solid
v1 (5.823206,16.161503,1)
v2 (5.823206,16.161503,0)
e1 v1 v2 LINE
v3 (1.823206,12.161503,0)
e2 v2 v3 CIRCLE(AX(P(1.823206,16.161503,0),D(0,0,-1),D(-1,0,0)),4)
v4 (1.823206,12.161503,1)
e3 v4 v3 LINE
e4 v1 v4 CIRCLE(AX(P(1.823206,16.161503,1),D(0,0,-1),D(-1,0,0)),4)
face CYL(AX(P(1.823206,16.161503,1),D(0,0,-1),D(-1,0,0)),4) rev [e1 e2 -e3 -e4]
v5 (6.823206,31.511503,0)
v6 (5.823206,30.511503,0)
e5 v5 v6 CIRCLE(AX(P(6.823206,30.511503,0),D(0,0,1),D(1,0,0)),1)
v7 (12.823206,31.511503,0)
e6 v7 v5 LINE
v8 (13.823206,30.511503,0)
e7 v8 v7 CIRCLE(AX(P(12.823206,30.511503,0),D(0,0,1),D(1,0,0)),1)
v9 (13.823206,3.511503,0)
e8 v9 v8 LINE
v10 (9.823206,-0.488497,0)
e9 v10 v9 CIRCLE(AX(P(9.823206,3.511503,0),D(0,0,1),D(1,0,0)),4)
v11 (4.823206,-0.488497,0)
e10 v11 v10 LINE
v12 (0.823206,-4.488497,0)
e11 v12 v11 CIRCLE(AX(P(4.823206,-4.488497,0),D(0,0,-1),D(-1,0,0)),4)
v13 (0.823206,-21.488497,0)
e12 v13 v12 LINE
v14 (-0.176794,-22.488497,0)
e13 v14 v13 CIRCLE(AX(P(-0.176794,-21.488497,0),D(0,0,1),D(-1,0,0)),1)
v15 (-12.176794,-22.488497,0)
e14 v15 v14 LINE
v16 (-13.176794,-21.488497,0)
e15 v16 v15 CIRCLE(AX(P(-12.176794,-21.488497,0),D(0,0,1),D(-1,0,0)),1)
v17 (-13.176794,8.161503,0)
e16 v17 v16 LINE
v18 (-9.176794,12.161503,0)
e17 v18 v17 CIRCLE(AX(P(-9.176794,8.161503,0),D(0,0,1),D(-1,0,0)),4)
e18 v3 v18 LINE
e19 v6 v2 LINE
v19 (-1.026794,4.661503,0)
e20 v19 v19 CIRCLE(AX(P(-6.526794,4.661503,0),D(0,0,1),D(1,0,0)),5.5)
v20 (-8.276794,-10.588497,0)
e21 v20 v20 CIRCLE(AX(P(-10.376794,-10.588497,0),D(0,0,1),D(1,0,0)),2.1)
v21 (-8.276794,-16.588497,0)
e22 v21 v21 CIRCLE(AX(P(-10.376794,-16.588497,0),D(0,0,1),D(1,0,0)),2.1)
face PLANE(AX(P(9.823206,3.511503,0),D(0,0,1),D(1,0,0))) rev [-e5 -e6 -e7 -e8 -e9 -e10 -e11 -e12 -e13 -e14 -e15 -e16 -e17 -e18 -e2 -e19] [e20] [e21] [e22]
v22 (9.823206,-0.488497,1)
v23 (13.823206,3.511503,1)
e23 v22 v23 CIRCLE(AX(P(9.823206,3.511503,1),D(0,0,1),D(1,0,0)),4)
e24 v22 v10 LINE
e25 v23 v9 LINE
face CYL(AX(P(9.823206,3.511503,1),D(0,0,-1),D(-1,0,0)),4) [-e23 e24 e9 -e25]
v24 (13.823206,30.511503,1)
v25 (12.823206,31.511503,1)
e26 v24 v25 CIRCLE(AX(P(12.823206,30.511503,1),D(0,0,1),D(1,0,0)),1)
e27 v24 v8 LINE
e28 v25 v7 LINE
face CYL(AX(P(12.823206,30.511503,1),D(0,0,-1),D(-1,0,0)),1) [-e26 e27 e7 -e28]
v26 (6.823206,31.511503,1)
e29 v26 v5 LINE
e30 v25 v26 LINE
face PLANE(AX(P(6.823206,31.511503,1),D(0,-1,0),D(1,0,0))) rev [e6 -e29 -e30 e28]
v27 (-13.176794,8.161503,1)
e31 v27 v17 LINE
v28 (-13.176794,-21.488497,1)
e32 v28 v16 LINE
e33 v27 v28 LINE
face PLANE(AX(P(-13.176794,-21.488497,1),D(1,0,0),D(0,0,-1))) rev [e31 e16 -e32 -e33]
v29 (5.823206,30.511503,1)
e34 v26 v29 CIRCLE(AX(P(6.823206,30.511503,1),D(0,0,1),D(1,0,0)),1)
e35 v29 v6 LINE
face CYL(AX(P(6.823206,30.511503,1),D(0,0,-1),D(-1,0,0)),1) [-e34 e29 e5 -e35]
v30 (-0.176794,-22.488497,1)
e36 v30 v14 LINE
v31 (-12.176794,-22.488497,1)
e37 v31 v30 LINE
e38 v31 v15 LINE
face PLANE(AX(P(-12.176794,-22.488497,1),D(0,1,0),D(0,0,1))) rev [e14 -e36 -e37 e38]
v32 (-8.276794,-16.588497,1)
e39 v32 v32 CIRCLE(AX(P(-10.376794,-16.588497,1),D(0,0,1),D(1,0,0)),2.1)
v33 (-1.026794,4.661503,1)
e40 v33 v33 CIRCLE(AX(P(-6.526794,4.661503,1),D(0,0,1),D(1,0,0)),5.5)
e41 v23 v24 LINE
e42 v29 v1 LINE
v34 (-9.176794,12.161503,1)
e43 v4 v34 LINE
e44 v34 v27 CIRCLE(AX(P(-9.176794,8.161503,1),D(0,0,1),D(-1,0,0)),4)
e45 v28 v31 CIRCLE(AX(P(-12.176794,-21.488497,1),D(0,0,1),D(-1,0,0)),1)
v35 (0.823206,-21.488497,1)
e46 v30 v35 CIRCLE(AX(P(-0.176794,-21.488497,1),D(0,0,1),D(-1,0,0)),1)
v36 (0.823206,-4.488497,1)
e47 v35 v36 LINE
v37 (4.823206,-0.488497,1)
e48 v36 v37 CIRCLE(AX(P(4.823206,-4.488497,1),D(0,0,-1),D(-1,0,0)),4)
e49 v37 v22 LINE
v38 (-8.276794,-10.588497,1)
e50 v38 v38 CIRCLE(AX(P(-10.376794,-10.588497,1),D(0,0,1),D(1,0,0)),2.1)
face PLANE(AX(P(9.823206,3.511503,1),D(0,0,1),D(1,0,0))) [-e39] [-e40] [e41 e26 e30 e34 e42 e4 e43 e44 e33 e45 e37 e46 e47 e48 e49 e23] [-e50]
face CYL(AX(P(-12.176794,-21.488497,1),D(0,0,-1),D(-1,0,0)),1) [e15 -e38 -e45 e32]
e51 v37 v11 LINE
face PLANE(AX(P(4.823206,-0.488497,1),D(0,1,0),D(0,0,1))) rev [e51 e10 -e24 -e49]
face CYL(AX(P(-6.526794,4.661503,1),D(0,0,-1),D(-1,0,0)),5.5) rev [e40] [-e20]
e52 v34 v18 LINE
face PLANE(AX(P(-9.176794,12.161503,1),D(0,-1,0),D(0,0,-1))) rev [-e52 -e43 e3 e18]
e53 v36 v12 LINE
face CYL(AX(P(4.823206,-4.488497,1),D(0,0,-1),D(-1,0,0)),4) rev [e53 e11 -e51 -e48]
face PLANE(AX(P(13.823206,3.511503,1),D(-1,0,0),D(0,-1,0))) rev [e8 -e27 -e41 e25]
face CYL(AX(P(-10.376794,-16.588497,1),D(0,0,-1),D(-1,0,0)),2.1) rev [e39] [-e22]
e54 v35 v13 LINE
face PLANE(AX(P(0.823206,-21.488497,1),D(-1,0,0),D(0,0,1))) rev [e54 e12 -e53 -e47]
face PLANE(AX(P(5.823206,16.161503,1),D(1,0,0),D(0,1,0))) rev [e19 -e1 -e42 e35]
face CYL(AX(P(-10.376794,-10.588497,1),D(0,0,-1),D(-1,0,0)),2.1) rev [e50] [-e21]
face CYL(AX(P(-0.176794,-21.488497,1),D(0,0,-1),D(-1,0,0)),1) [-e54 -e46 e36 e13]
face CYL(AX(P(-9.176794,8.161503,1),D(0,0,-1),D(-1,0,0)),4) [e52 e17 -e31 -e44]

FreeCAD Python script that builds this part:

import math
import FreeCAD as App
import Part
import Sketcher

V = App.Vector

doc = App.newDocument("Part")
body = doc.addObject("PartDesign::Body", "Body")

# Sketch on XY plane
sketch1 = doc.addObject("Sketcher::SketchObject", "Sketch")
body.addObject(sketch1)
sketch1.AttachmentSupport = (doc.XY_Plane, [""])
sketch1.MapMode = "FlatFace"
sketch1.addGeometry(Part.LineSegment(V(4.8, -0.5, 0), V(9.8, -0.5, 0)), False)
sketch1.addGeometry(Part.ArcOfCircle(Part.Circle(V(9.8, 3.5, 0), V(0, 0, 1), 4), math.radians(-90), math.radians(0)), False)
sketch1.addGeometry(Part.LineSegment(V(13.8, 3.5, 0), V(13.8, 30.5, 0)), False)
sketch1.addGeometry(Part.ArcOfCircle(Part.Circle(V(12.8, 30.5, 0), V(0, 0, 1), 1), math.radians(0), math.radians(90)), False)
sketch1.addGeometry(Part.LineSegment(V(12.8, 31.5, 0), V(6.8, 31.5, 0)), False)
sketch1.addGeometry(Part.ArcOfCircle(Part.Circle(V(6.8, 30.5, 0), V(0, 0, 1), 1), math.radians(90), math.radians(180)), False)
sketch1.addGeometry(Part.LineSegment(V(5.8, 30.5, 0), V(5.8, 16.2, 0)), False)
sketch1.addGeometry(Part.ArcOfCircle(Part.Circle(V(1.8, 16.2, 0), V(0, 0, 1), 4), math.radians(-90), math.radians(0)), False)
sketch1.addGeometry(Part.LineSegment(V(1.8, 12.2, 0), V(-9.2, 12.2, 0)), False)
sketch1.addGeometry(Part.ArcOfCircle(Part.Circle(V(-9.2, 8.2, 0), V(0, 0, 1), 4), math.radians(90), math.radians(180)), False)
sketch1.addGeometry(Part.LineSegment(V(-13.2, 8.2, 0), V(-13.2, -21.5, 0)), False)
sketch1.addGeometry(Part.ArcOfCircle(Part.Circle(V(-12.2, -21.5, 0), V(0, 0, 1), 1), math.radians(-180), math.radians(-90)), False)
sketch1.addGeometry(Part.LineSegment(V(-12.2, -22.5, 0), V(-0.2, -22.5, 0)), False)
sketch1.addGeometry(Part.ArcOfCircle(Part.Circle(V(-0.2, -21.5, 0), V(0, 0, 1), 1), math.radians(-90), math.radians(0)), False)
sketch1.addGeometry(Part.LineSegment(V(0.8, -21.5, 0), V(0.8, -4.5, 0)), False)
sketch1.addGeometry(Part.ArcOfCircle(Part.Circle(V(4.8, -4.5, 0), V(0, 0, 1), 4), math.radians(90), math.radians(180)), False)
sketch1.addGeometry(Part.Circle(V(-10.4, -16.6, 0), V(0, 0, 1), 2.1), False)
sketch1.addGeometry(Part.Circle(V(-10.4, -10.6, 0), V(0, 0, 1), 2.1), False)
sketch1.addGeometry(Part.Circle(V(-6.5, 4.7, 0), V(0, 0, 1), 5.5), False)
sketch1.addConstraint(Sketcher.Constraint("Tangent", 0, 2, 1, 1))
sketch1.addConstraint(Sketcher.Constraint("Tangent", 1, 2, 2, 1))
sketch1.addConstraint(Sketcher.Constraint("Tangent", 2, 2, 3, 1))
sketch1.addConstraint(Sketcher.Constraint("Tangent", 3, 2, 4, 1))
sketch1.addConstraint(Sketcher.Constraint("Tangent", 4, 2, 5, 1))
sketch1.addConstraint(Sketcher.Constraint("Tangent", 5, 2, 6, 1))
sketch1.addConstraint(Sketcher.Constraint("Tangent", 6, 2, 7, 2))
sketch1.addConstraint(Sketcher.Constraint("Tangent", 7, 1, 8, 1))
sketch1.addConstraint(Sketcher.Constraint("Tangent", 8, 2, 9, 1))
sketch1.addConstraint(Sketcher.Constraint("Tangent", 9, 2, 10, 1))
sketch1.addConstraint(Sketcher.Constraint("Tangent", 10, 2, 11, 1))
sketch1.addConstraint(Sketcher.Constraint("Tangent", 11, 2, 12, 1))
sketch1.addConstraint(Sketcher.Constraint("Tangent", 12, 2, 13, 1))
sketch1.addConstraint(Sketcher.Constraint("Tangent", 13, 2, 14, 1))
sketch1.addConstraint(Sketcher.Constraint("Tangent", 14, 2, 15, 2))
sketch1.addConstraint(Sketcher.Constraint("Tangent", 15, 1, 0, 1))
sketch1.addConstraint(Sketcher.Constraint("Horizontal", 0))
sketch1.addConstraint(Sketcher.Constraint("Vertical", 2))
sketch1.addConstraint(Sketcher.Constraint("Horizontal", 4))
sketch1.addConstraint(Sketcher.Constraint("Vertical", 6))
sketch1.addConstraint(Sketcher.Constraint("Horizontal", 8))
sketch1.addConstraint(Sketcher.Constraint("Vertical", 10))
sketch1.addConstraint(Sketcher.Constraint("Horizontal", 12))
sketch1.addConstraint(Sketcher.Constraint("Vertical", 14))
sketch1.addConstraint(Sketcher.Constraint("Equal", 3, 5))
sketch1.addConstraint(Sketcher.Constraint("Equal", 1, 7))
sketch1.addConstraint(Sketcher.Constraint("Equal", 7, 9))
sketch1.addConstraint(Sketcher.Constraint("Equal", 5, 11))
sketch1.addConstraint(Sketcher.Constraint("Equal", 11, 13))
sketch1.addConstraint(Sketcher.Constraint("Equal", 9, 15))
sketch1.addConstraint(Sketcher.Constraint("Equal", 16, 17))
sketch1.addConstraint(Sketcher.Constraint("Vertical", 16, 3, 17, 3))
sketch1.addConstraint(Sketcher.Constraint("Diameter", 18, 11.0))
sketch1.addConstraint(Sketcher.Constraint("Radius", 1, 4.0))
sketch1.addConstraint(Sketcher.Constraint("Radius", 3, 1.0))
sketch1.addConstraint(Sketcher.Constraint("Diameter", 16, 4.2))
sketch1.addConstraint(Sketcher.Constraint("DistanceX", 0, 1, 0, 2, 5.0))
sketch1.addConstraint(Sketcher.Constraint("DistanceX", 4, 2, 4, 1, 6.0))
sketch1.addConstraint(Sketcher.Constraint("DistanceX", 8, 2, 8, 1, 11.0))
sketch1.addConstraint(Sketcher.Constraint("DistanceY", 2, 1, 2, 2, 27.0))
sketch1.addConstraint(Sketcher.Constraint("DistanceY", 14, 1, 14, 2, 17.0))
sketch1.addConstraint(Sketcher.Constraint("DistanceY", 16, 3, 17, 3, 6.0))
sketch1.addConstraint(Sketcher.Constraint("DistanceY", 6, 2, 6, 1, 14.35))
sketch1.addConstraint(Sketcher.Constraint("DistanceX", 11, 3, 16, 3, 1.8))
sketch1.addConstraint(Sketcher.Constraint("DistanceY", 11, 3, 16, 3, 4.9))
sketch1.addConstraint(Sketcher.Constraint("DistanceY", 18, 3, 9, 3, 3.5))
sketch1.addConstraint(Sketcher.Constraint("DistanceX", 9, 3, 18, 3, 2.65))
sketch1.addConstraint(Sketcher.Constraint("DistanceX", -1, 1, 1, 3, 9.823206))
sketch1.addConstraint(Sketcher.Constraint("DistanceY", -1, 1, 1, 3, 3.511503))
pad1 = doc.addObject("PartDesign::Pad", "Pad")
body.addObject(pad1)
pad1.Profile = sketch1
pad1.Length = 1

doc.recompute()
